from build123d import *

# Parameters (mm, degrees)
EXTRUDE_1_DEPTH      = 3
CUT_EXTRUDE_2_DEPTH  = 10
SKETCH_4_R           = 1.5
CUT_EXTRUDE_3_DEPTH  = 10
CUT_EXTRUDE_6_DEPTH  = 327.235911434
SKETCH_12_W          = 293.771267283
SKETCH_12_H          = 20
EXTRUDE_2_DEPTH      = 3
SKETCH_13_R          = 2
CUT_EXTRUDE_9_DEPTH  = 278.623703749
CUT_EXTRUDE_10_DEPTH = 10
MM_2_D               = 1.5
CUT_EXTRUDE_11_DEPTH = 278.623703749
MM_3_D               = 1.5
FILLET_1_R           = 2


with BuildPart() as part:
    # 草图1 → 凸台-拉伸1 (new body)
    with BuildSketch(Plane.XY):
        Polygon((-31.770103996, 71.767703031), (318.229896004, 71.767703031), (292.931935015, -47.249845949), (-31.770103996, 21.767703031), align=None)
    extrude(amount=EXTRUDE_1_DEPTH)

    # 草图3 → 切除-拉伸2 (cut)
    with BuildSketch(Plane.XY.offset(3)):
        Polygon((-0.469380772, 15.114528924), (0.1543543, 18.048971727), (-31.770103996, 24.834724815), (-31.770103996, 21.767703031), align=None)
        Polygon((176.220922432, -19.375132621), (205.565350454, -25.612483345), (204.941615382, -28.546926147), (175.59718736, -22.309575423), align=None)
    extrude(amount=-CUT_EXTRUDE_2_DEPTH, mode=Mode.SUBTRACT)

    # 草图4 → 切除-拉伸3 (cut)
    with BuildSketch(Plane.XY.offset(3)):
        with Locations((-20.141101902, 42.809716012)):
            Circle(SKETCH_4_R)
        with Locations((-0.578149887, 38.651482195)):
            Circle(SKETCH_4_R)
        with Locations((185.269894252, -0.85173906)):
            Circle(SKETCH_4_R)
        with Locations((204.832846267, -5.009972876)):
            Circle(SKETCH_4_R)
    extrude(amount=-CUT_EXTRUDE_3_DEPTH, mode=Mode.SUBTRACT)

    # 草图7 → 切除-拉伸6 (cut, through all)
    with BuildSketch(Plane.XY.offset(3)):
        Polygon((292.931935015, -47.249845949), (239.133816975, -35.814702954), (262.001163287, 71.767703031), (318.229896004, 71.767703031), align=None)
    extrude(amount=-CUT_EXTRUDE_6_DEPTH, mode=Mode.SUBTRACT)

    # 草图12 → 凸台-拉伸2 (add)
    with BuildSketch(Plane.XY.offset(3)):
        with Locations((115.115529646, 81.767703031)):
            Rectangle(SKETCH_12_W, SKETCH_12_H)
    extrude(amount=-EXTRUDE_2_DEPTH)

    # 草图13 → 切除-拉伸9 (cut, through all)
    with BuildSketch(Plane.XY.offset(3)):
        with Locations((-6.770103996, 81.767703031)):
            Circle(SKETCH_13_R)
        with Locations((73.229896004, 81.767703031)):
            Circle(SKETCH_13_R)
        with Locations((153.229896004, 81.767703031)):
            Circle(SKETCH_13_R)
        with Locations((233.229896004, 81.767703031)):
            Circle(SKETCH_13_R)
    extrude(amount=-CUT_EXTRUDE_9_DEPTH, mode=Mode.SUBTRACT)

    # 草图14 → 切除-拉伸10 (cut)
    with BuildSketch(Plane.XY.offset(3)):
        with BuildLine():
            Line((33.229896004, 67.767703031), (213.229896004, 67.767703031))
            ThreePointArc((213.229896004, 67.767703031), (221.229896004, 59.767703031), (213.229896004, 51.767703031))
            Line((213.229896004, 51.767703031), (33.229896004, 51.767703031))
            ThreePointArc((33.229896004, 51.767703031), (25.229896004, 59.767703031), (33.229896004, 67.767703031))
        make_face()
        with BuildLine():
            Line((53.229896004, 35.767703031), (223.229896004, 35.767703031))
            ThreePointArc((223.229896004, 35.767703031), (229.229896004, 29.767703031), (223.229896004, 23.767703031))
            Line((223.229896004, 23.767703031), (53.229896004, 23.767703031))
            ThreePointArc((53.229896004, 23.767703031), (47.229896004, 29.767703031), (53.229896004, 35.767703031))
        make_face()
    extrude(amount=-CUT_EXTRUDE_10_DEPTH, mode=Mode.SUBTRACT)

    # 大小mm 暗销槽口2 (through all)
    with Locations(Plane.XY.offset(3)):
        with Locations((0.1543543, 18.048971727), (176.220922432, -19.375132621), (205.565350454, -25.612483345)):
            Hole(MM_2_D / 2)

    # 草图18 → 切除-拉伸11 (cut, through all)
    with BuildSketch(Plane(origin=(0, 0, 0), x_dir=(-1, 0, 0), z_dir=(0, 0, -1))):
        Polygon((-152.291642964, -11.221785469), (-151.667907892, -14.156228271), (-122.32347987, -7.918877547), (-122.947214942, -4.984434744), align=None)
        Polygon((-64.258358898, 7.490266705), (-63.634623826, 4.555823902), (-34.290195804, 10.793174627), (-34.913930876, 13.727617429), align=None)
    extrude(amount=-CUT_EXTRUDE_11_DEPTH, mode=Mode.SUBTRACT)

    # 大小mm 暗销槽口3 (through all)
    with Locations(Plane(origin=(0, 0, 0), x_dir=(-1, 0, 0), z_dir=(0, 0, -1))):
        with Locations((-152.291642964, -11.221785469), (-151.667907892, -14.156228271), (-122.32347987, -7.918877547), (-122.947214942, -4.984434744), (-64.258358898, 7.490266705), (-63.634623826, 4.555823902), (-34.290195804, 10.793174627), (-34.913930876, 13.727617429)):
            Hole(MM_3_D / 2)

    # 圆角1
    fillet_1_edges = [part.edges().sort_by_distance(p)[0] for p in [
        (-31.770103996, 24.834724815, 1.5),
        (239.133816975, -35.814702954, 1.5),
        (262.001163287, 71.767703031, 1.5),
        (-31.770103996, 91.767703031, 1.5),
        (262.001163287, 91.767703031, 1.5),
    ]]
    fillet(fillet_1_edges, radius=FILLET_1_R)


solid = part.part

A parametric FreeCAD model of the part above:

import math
import FreeCAD as App
import Part
import Sketcher
Q = App.Units.Quantity


def edges_at(feature, points):
    """Names of the edges that pass closest to the given points."""
    edges = feature.Shape.Edges
    near = lambda p: min(range(len(edges)), key=lambda i: edges[i].distToShape(Part.Vertex(*p))[0])
    return sorted({f"Edge{near(p) + 1}" for p in points})

doc = App.newDocument("Part")
params = doc.addObject("Spreadsheet::Sheet", "Params")
for row, (alias, value) in enumerate([
    ("sketch1_width", "350 mm"),
    ("sketch1_height", "50 mm"),
    ("pad1_length", "3 mm"),
    ("sketch2_length", "3 mm"),
    ("sketch2_length2", "32 mm"),
    ("sketch2_length3", "30 mm"),
    ("pocket1_length", "10 mm"),
    ("sketch3_diameter", "3 mm"),
    ("pocket2_length", "10 mm"),
    ("sketch4_length", "55 mm"),
    ("sketch5_height", "20 mm"),
    ("pad2_length", "3 mm"),
    ("sketch6_diameter", "4 mm"),
    ("sketch7_radius", "8 mm"),
    ("sketch7_radius2", "6 mm"),
    ("sketch7_width", "180 mm"),
    ("sketch7_width2", "170 mm"),
    ("pocket5_length", "10 mm"),
    ("sketch8_diameter", "1.5 mm"),
    ("hole_diameter", "1.5 mm"),
    ("sketch9_length", "3 mm"),
    ("sketch9_length2", "30 mm"),
    ("sketch10_diameter", "1.5 mm"),
    ("hole2_diameter", "1.5 mm"),
    ("fillet_radius", "2 mm"),
], start=1):
    params.set(f"A{row}", alias)
    params.set(f"B{row}", "=" + value)
    params.setAlias(f"B{row}", alias)

body = doc.addObject("PartDesign::Body", "Body")

# Sketch on XY plane
sketch1 = doc.addObject("Sketcher::SketchObject", "Sketch")
body.addObject(sketch1)
sketch1.AttachmentSupport = (doc.XY_Plane, [""])
sketch1.MapMode = "FlatFace"
sketch1.addGeometry([
    Part.LineSegment(App.Vector(318, 72, 0), App.Vector(-32, 72, 0)),
    Part.LineSegment(App.Vector(-32, 72, 0), App.Vector(-32, 22, 0)),
    Part.LineSegment(App.Vector(-32, 22, 0), App.Vector(293, -47, 0)),
    Part.LineSegment(App.Vector(293, -47, 0), App.Vector(318, 72, 0)),
], False)
sketch1.addConstraint([
    Sketcher.Constraint("Coincident", 0, 2, 1, 1),
    Sketcher.Constraint("Coincident", 1, 2, 2, 1),
    Sketcher.Constraint("Coincident", 2, 2, 3, 1),
    Sketcher.Constraint("Coincident", 3, 2, 0, 1),
    Sketcher.Constraint("Horizontal", 0),
    Sketcher.Constraint("Vertical", 1),
    Sketcher.Constraint("Perpendicular", 2, 3),
    Sketcher.Constraint("DistanceX", 0, 2, 0, 1, 350.0),
    Sketcher.Constraint("DistanceY", 1, 2, 1, 1, 50.0),
    Sketcher.Constraint("Angle", 2, Q("-12 deg")),
    Sketcher.Constraint("DistanceX", 0, 2, -1, 1, 31.770104),
    Sketcher.Constraint("DistanceY", -1, 1, 0, 2, 71.767703),
])
sketch1.setExpression("Constraints[7]", "Params.sketch1_width")
sketch1.setExpression("Constraints[8]", "Params.sketch1_height")
pad1 = doc.addObject("PartDesign::Pad", "Pad")
body.addObject(pad1)
pad1.Profile = sketch1
pad1.setExpression("Length", "Params.pad1_length")

# Sketch on XY plane
sketch2 = doc.addObject("Sketcher::SketchObject", "Sketch001")
body.addObject(sketch2)
sketch2.AttachmentSupport = (doc.XY_Plane, [""])
sketch2.MapMode = "FlatFace"
sketch2.AttachmentOffset = App.Placement(App.Vector(0, 0, 3), App.Rotation())
sketch2.addGeometry([
    Part.LineSegment(App.Vector(-0.5, 15.1, 0), App.Vector(0.2, 18, 0)),  # 0
    Part.LineSegment(App.Vector(0.2, 18, 0), App.Vector(-31.8, 24.8, 0)),  # 1
    Part.LineSegment(App.Vector(-31.8, 24.8, 0), App.Vector(-31.8, 21.8, 0)),  # 2
    Part.LineSegment(App.Vector(-31.8, 21.8, 0), App.Vector(-0.5, 15.1, 0)),  # 3
    Part.LineSegment(App.Vector(205.6, -25.6, 0), App.Vector(176.2, -19.4, 0)),  # 4
    Part.LineSegment(App.Vector(176.2, -19.4, 0), App.Vector(175.6, -22.3, 0)),  # 5
    Part.LineSegment(App.Vector(175.6, -22.3, 0), App.Vector(204.9, -28.5, 0)),  # 6
    Part.LineSegment(App.Vector(204.9, -28.5, 0), App.Vector(205.6, -25.6, 0)),  # 7
], False)
sketch2.addConstraint([
    Sketcher.Constraint("Coincident", 0, 2, 1, 1),
    Sketcher.Constraint("Coincident", 1, 2, 2, 1),
    Sketcher.Constraint("Coincident", 2, 2, 3, 1),
    Sketcher.Constraint("Coincident", 3, 2, 0, 1),
    Sketcher.Constraint("Coincident", 4, 2, 5, 1),
    Sketcher.Constraint("Coincident", 5, 2, 6, 1),
    Sketcher.Constraint("Coincident", 6, 2, 7, 1),
    Sketcher.Constraint("Coincident", 7, 2, 4, 1),
    Sketcher.Constraint("Vertical", 2),
    Sketcher.Constraint("Perpendicular", 0, 1),
    Sketcher.Constraint("Parallel", 1, 3),
    Sketcher.Constraint("Parallel", 3, 4),
    Sketcher.Constraint("Perpendicular", 4, 5),
    Sketcher.Constraint("Perpendicular", 5, 6),
    Sketcher.Constraint("Perpendicular", 6, 7),
    Sketcher.Constraint("Equal", 0, 5),
    Sketcher.Constraint("Angle", 0, Q("78 deg")),
    Sketcher.Constraint("Distance", 0, 3.0),
    Sketcher.Constraint("Distance", 3, 32.0),
    Sketcher.Constraint("Distance", 4, 30.0),
    Sketcher.Constraint("DistanceY", 5, 2, 1, 2, 47.1443),
    Sketcher.Constraint("DistanceY", -1, 1, 0, 2, 18.048972),
    Sketcher.Constraint("DistanceX", 3, 2, -1, 1, 0.469381),
    Sketcher.Constraint("DistanceX", -1, 1, 7, 2, 205.56535),
])
sketch2.setExpression("Constraints[17]", "Params.sketch2_length")
sketch2.setExpression("Constraints[18]", "Params.sketch2_length2")
sketch2.setExpression("Constraints[19]", "Params.sketch2_length3")
pocket1 = doc.addObject("PartDesign::Pocket", "Pocket")
body.addObject(pocket1)
pocket1.Profile = sketch2
pocket1.setExpression("Length", "Params.pocket1_length")

# Sketch on XY plane
sketch3 = doc.addObject("Sketcher::SketchObject", "Sketch002")
body.addObject(sketch3)
sketch3.AttachmentSupport = (doc.XY_Plane, [""])
sketch3.MapMode = "FlatFace"
sketch3.AttachmentOffset = App.Placement(App.Vector(0, 0, 3), App.Rotation())
sketch3.addGeometry([
    Part.Circle(App.Vector(-20.1, 42.8, 0), App.Vector(0, 0, 1), 1.5),
    Part.Circle(App.Vector(-0.6, 38.7, 0), App.Vector(0, 0, 1), 1.5),
    Part.Circle(App.Vector(185.3, -0.9, 0), App.Vector(0, 0, 1), 1.5),
    Part.Circle(App.Vector(204.8, -5, 0), App.Vector(0, 0, 1), 1.5),
], False)
sketch3.addConstraint([
    Sketcher.Constraint("Equal", 0, 1),
    Sketcher.Constraint("Equal", 1, 2),
    Sketcher.Constraint("Equal", 2, 3),
    Sketcher.Constraint("Diameter", 0, 3.0),
    Sketcher.Constraint("DistanceX", 0, 3, -1, 1, 20.141102),
    Sketcher.Constraint("DistanceX", 1, 3, -1, 1, 0.57815),
    Sketcher.Constraint("DistanceY", 2, 3, -1, 1, 0.851739),
    Sketcher.Constraint("DistanceY", 2, 3, 1, 3, 39.503221),
    Sketcher.Constraint("DistanceX", 0, 3, 3, 3, 224.973948),
    Sketcher.Constraint("DistanceY", 3, 3, 0, 3, 47.819689),
    Sketcher.Constraint("DistanceY", -1, 1, 0, 3, 42.809716),
    Sketcher.Constraint("DistanceX", -1, 1, 2, 3, 185.269894),
])
sketch3.setExpression("Constraints[3]", "Params.sketch3_diameter")
pocket2 = doc.addObject("PartDesign::Pocket", "Pocket001")
body.addObject(pocket2)
pocket2.Profile = sketch3
pocket2.setExpression("Length", "Params.pocket2_length")

# Sketch on XY plane
sketch4 = doc.addObject("Sketcher::SketchObject", "Sketch003")
body.addObject(sketch4)
sketch4.AttachmentSupport = (doc.XY_Plane, [""])
sketch4.MapMode = "FlatFace"
sketch4.AttachmentOffset = App.Placement(App.Vector(0, 0, 3), App.Rotation())
sketch4.addGeometry([
    Part.LineSegment(App.Vector(239, -36, 0), App.Vector(293, -47, 0)),
    Part.LineSegment(App.Vector(293, -47, 0), App.Vector(318, 72, 0)),
    Part.LineSegment(App.Vector(318, 72, 0), App.Vector(262, 72, 0)),
    Part.LineSegment(App.Vector(262, 72, 0), App.Vector(239, -36, 0)),
], False)
sketch4.addConstraint([
    Sketcher.Constraint("Coincident", 0, 2, 1, 1),
    Sketcher.Constraint("Coincident", 1, 2, 2, 1),
    Sketcher.Constraint("Coincident", 2, 2, 3, 1),
    Sketcher.Constraint("Coincident", 3, 2, 0, 1),
    Sketcher.Constraint("Horizontal", 2),
    Sketcher.Constraint("Perpendicular", 0, 1),
    Sketcher.Constraint("Parallel", 1, 3),
    Sketcher.Constraint("Angle", 0, Q("-12 deg")),
    Sketcher.Constraint("Distance", 0, 55.0),
    Sketcher.Constraint("Distance", 1, 121.676472),
    Sketcher.Constraint("DistanceX", -1, 1, 0, 2, 292.931935),
    Sketcher.Constraint("DistanceY", 0, 2, -1, 1, 47.249846),
])
sketch4.setExpression("Constraints[8]", "Params.sketch4_length")
pocket3 = doc.addObject("PartDesign::Pocket", "Pocket002")
body.addObject(pocket3)
pocket3.Profile = sketch4
pocket3.Type = "ThroughAll"

# Sketch on XY plane
sketch5 = doc.addObject("Sketcher::SketchObject", "Sketch004")
body.addObject(sketch5)
sketch5.AttachmentSupport = (doc.XY_Plane, [""])
sketch5.MapMode = "FlatFace"
sketch5.AttachmentOffset = App.Placement(App.Vector(0, 0, 3), App.Rotation())
sketch5.addGeometry([
    Part.LineSegment(App.Vector(-32, 92, 0), App.Vector(-32, 72, 0)),
    Part.LineSegment(App.Vector(-32, 72, 0), App.Vector(262, 72, 0)),
    Part.LineSegment(App.Vector(262, 72, 0), App.Vector(262, 92, 0)),
    Part.LineSegment(App.Vector(262, 92, 0), App.Vector(-32, 92, 0)),
], False)
sketch5.addConstraint([
    Sketcher.Constraint("Coincident", 0, 2, 1, 1),
    Sketcher.Constraint("Coincident", 1, 2, 2, 1),
    Sketcher.Constraint("Coincident", 2, 2, 3, 1),
    Sketcher.Constraint("Coincident", 3, 2, 0, 1),
    Sketcher.Constraint("Vertical", 0),
    Sketcher.Constraint("Horizontal", 1),
    Sketcher.Constraint("Vertical", 2),
    Sketcher.Constraint("Horizontal", 3),
    Sketcher.Constraint("DistanceY", 0, 2, 0, 1, 20.0),
    Sketcher.Constraint("DistanceX", 1, 1, 1, 2, 293.771267),
    Sketcher.Constraint("DistanceX", 0, 2, -1, 1, 31.770104),
    Sketcher.Constraint("DistanceY", -1, 1, 0, 2, 71.767703),
])
sketch5.setExpression("Constraints[8]", "Params.sketch5_height")
pad2 = doc.addObject("PartDesign::Pad", "Pad001")
body.addObject(pad2)
pad2.Profile = sketch5
pad2.setExpression("Length", "Params.pad2_length")
pad2.Reversed = True

# Sketch on XY plane
sketch6 = doc.addObject("Sketcher::SketchObject", "Sketch005")
body.addObject(sketch6)
sketch6.AttachmentSupport = (doc.XY_Plane, [""])
sketch6.MapMode = "FlatFace"
sketch6.AttachmentOffset = App.Placement(App.Vector(0, 0, 3), App.Rotation())
sketch6.addGeometry([
    Part.Circle(App.Vector(-6.8, 81.8, 0), App.Vector(0, 0, 1), 2),
    Part.Circle(App.Vector(73.2, 81.8, 0), App.Vector(0, 0, 1), 2),
    Part.Circle(App.Vector(153.2, 81.8, 0), App.Vector(0, 0, 1), 2),
    Part.Circle(App.Vector(233.2, 81.8, 0), App.Vector(0, 0, 1), 2),
], False)
sketch6.addConstraint([
    Sketcher.Constraint("Equal", 0, 1),
    Sketcher.Constraint("Equal", 1, 2),
    Sketcher.Constraint("Equal", 2, 3),
    Sketcher.Constraint("Horizontal", 0, 3, 1, 3),
    Sketcher.Constraint("Horizontal", 1, 3, 2, 3),
    Sketcher.Constraint("Horizontal", 2, 3, 3, 3),
    Sketcher.Constraint("Diameter", 0, 4.0),
    Sketcher.Constraint("DistanceX", 0, 3, 1, 3, 80.0),
    Sketcher.Constraint("DistanceX", 1, 3, 2, 3, 80.0),
    Sketcher.Constraint("DistanceX", 2, 3, 3, 3, 80.0),
    Sketcher.Constraint("DistanceX", 0, 3, -1, 1, 6.770104),
    Sketcher.Constraint("DistanceY", -1, 1, 0, 3, 81.767703),
])
sketch6.setExpression("Constraints[6]", "Params.sketch6_diameter")
pocket4 = doc.addObject("PartDesign::Pocket", "Pocket003")
body.addObject(pocket4)
pocket4.Profile = sketch6
pocket4.Type = "ThroughAll"

# Sketch on XY plane
sketch7 = doc.addObject("Sketcher::SketchObject", "Sketch006")
body.addObject(sketch7)
sketch7.AttachmentSupport = (doc.XY_Plane, [""])
sketch7.MapMode = "FlatFace"
sketch7.AttachmentOffset = App.Placement(App.Vector(0, 0, 3), App.Rotation())
sketch7.addGeometry([
    Part.LineSegment(App.Vector(213, 68, 0), App.Vector(33, 68, 0)),  # 0
    Part.ArcOfCircle(Part.Circle(App.Vector(33, 60, 0), App.Vector(0, 0, 1), 8), math.radians(90), math.radians(270)),  # 1
    Part.LineSegment(App.Vector(33, 52, 0), App.Vector(213, 52, 0)),  # 2
    Part.ArcOfCircle(Part.Circle(App.Vector(213, 60, 0), App.Vector(0, 0, 1), 8), math.radians(-90), math.radians(90)),  # 3
    Part.LineSegment(App.Vector(223, 36, 0), App.Vector(53, 36, 0)),  # 4
    Part.ArcOfCircle(Part.Circle(App.Vector(53, 30, 0), App.Vector(0, 0, 1), 6), math.radians(90), math.radians(270)),  # 5
    Part.LineSegment(App.Vector(53, 24, 0), App.Vector(223, 24, 0)),  # 6
    Part.ArcOfCircle(Part.Circle(App.Vector(223, 30, 0), App.Vector(0, 0, 1), 6), math.radians(-90), math.radians(90)),  # 7
], False)
sketch7.addConstraint([
    Sketcher.Constraint("Tangent", 0, 2, 1, 1),
    Sketcher.Constraint("Tangent", 1, 2, 2, 1),
    Sketcher.Constraint("Tangent", 2, 2, 3, 1),
    Sketcher.Constraint("Tangent", 3, 2, 0, 1),
    Sketcher.Constraint("Tangent", 4, 2, 5, 1),
    Sketcher.Constraint("Tangent", 5, 2, 6, 1),
    Sketcher.Constraint("Tangent", 6, 2, 7, 1),
    Sketcher.Constraint("Tangent", 7, 2, 4, 1),
    Sketcher.Constraint("Horizontal", 0),
    Sketcher.Constraint("Horizontal", 2),
    Sketcher.Constraint("Horizontal", 4),
    Sketcher.Constraint("Horizontal", 6),
    Sketcher.Constraint("Radius", 1, 8.0),
    Sketcher.Constraint("Radius", 5, 6.0),
    Sketcher.Constraint("DistanceX", 0, 2, 0, 1, 180.0),
    Sketcher.Constraint("DistanceX", 4, 2, 4, 1, 170.0),
    Sketcher.Constraint("DistanceX", 1, 3, 5, 3, 20.0),
    Sketcher.Constraint("DistanceY", 5, 3, 1, 3, 30.0),
    Sketcher.Constraint("DistanceX", -1, 1, 1, 3, 33.229896),
    Sketcher.Constraint("DistanceY", -1, 1, 1, 3, 59.767703),
])
sketch7.setExpression("Constraints[12]", "Params.sketch7_radius")
sketch7.setExpression("Constraints[13]", "Params.sketch7_radius2")
sketch7.setExpression("Constraints[14]", "Params.sketch7_width")
sketch7.setExpression("Constraints[15]", "Params.sketch7_width2")
pocket5 = doc.addObject("PartDesign::Pocket", "Pocket004")
body.addObject(pocket5)
pocket5.Profile = sketch7
pocket5.setExpression("Length", "Params.pocket5_length")

# Sketch on XY plane
sketch8 = doc.addObject("Sketcher::SketchObject", "Sketch007")
body.addObject(sketch8)
sketch8.AttachmentSupport = (doc.XY_Plane, [""])
sketch8.MapMode = "FlatFace"
sketch8.AttachmentOffset = App.Placement(App.Vector(0, 0, 3), App.Rotation())
sketch8.addGeometry([
    Part.Circle(App.Vector(0.2, 18, 0), App.Vector(0, 0, 1), 0.8),
    Part.Circle(App.Vector(176.2, -19.4, 0), App.Vector(0, 0, 1), 0.8),
    Part.Circle(App.Vector(205.6, -25.6, 0), App.Vector(0, 0, 1), 0.8),
], False)
sketch8.addConstraint([
    Sketcher.Constraint("Equal", 0, 1),
    Sketcher.Constraint("Equal", 1, 2),
    Sketcher.Constraint("Diameter", 0, 1.5),
    Sketcher.Constraint("DistanceY", -1, 1, 0, 3, 18.048972),
    Sketcher.Constraint("DistanceX", -1, 1, 2, 3, 205.56535),
    Sketcher.Constraint("DistanceX", 0, 3, 1, 3, 176.066568),
    Sketcher.Constraint("DistanceX", 1, 3, 2, 3, 29.344428),
    Sketcher.Constraint("DistanceY", 2, 3, 1, 3, 6.237351),
    Sketcher.Constraint("DistanceY", 1, 3, -1, 1, 19.375133),
])
sketch8.setExpression("Constraints[2]", "Params.sketch8_diameter")
doc.recompute()
hole = doc.addObject("PartDesign::Hole", "Hole")
body.addObject(hole)
hole.Profile = sketch8
hole.ThreadType = "None"
hole.setExpression("Diameter", "Params.hole_diameter")
hole.DepthType = "ThroughAll"

# Sketch on XY plane
sketch9 = doc.addObject("Sketcher::SketchObject", "Sketch008")
body.addObject(sketch9)
sketch9.AttachmentSupport = (doc.XY_Plane, [""])
sketch9.MapMode = "FlatFace"
sketch9.addGeometry([
    Part.LineSegment(App.Vector(152.3, -11.2, 0), App.Vector(151.7, -14.2, 0)),  # 0
    Part.LineSegment(App.Vector(151.7, -14.2, 0), App.Vector(122.3, -7.9, 0)),  # 1
    Part.LineSegment(App.Vector(122.3, -7.9, 0), App.Vector(122.9, -5, 0)),  # 2
    Part.LineSegment(App.Vector(122.9, -5, 0), App.Vector(152.3, -11.2, 0)),  # 3
    Part.LineSegment(App.Vector(64.3, 7.5, 0), App.Vector(63.6, 4.6, 0)),  # 4
    Part.LineSegment(App.Vector(63.6, 4.6, 0), App.Vector(34.3, 10.8, 0)),  # 5
    Part.LineSegment(App.Vector(34.3, 10.8, 0), App.Vector(34.9, 13.7, 0)),  # 6
    Part.LineSegment(App.Vector(34.9, 13.7, 0), App.Vector(64.3, 7.5, 0)),  # 7
], False)
sketch9.addConstraint([
    Sketcher.Constraint("Coincident", 0, 2, 1, 1),
    Sketcher.Constraint("Coincident", 1, 2, 2, 1),
    Sketcher.Constraint("Coincident", 2, 2, 3, 1),
    Sketcher.Constraint("Coincident", 3, 2, 0, 1),
    Sketcher.Constraint("Coincident", 4, 2, 5, 1),
    Sketcher.Constraint("Coincident", 5, 2, 6, 1),
    Sketcher.Constraint("Coincident", 6, 2, 7, 1),
    Sketcher.Constraint("Coincident", 7, 2, 4, 1),
    Sketcher.Constraint("Perpendicular", 0, 1),
    Sketcher.Constraint("Perpendicular", 1, 2),
    Sketcher.Constraint("Perpendicular", 2, 3),
    Sketcher.Constraint("Perpendicular", 3, 4),
    Sketcher.Constraint("Perpendicular", 4, 5),
    Sketcher.Constraint("Perpendicular", 5, 6),
    Sketcher.Constraint("Perpendicular", 6, 7),
    Sketcher.Constraint("Equal", 2, 4),
    Sketcher.Constraint("Equal", 3, 5),
    Sketcher.Constraint("Angle", 0, Q("-102 deg")),
    Sketcher.Constraint("Distance", 0, 3.0),
    Sketcher.Constraint("Distance", 1, 30.0),
    Sketcher.Constraint("DistanceY", 1, 2, 4, 2, 12.474701),
    Sketcher.Constraint("DistanceY", 0, 2, -1, 1, 14.156228),
    Sketcher.Constraint("DistanceX", -1, 1, 1, 2, 122.32348),
    Sketcher.Constraint("DistanceX", -1, 1, 6, 2, 34.913931),
])
sketch9.setExpression("Constraints[18]", "Params.sketch9_length")
sketch9.setExpression("Constraints[19]", "Params.sketch9_length2")
pocket6 = doc.addObject("PartDesign::Pocket", "Pocket005")
body.addObject(pocket6)
pocket6.Profile = sketch9
pocket6.Type = "ThroughAll"
pocket6.Reversed = True

# Sketch on XY plane
sketch10 = doc.addObject("Sketcher::SketchObject", "Sketch009")
body.addObject(sketch10)
sketch10.AttachmentSupport = (doc.XY_Plane, [""])
sketch10.MapMode = "FlatFace"
sketch10.addGeometry([
    Part.Circle(App.Vector(152.3, -11.2, 0), App.Vector(0, 0, 1), 0.8),  # 0
    Part.Circle(App.Vector(151.7, -14.2, 0), App.Vector(0, 0, 1), 0.8),  # 1
    Part.Circle(App.Vector(122.3, -7.9, 0), App.Vector(0, 0, 1), 0.8),  # 2
    Part.Circle(App.Vector(122.9, -5, 0), App.Vector(0, 0, 1), 0.8),  # 3
    Part.Circle(App.Vector(64.3, 7.5, 0), App.Vector(0, 0, 1), 0.8),  # 4
    Part.Circle(App.Vector(63.6, 4.6, 0), App.Vector(0, 0, 1), 0.8),  # 5
    Part.Circle(App.Vector(34.3, 10.8, 0), App.Vector(0, 0, 1), 0.8),  # 6
    Part.Circle(App.Vector(34.9, 13.7, 0), App.Vector(0, 0, 1), 0.8),  # 7
], False)
sketch10.addConstraint([
    Sketcher.Constraint("Equal", 0, 1),
    Sketcher.Constraint("Equal", 1, 2),
    Sketcher.Constraint("Equal", 2, 3),
    Sketcher.Constraint("Equal", 3, 4),
    Sketcher.Constraint("Equal", 4, 5),
    Sketcher.Constraint("Equal", 5, 6),
    Sketcher.Constraint("Equal", 6, 7),
    Sketcher.Constraint("Diameter", 0, 1.5),
    Sketcher.Constraint("DistanceY", 3, 3, 4, 3, 12.474701),
    Sketcher.Constraint("DistanceY", 2, 3, 5, 3, 12.474701),
    Sketcher.Constraint("DistanceY", 1, 3, -1, 1, 14.156228),
    Sketcher.Constraint("DistanceX", -1, 1, 2, 3, 122.32348),
    Sketcher.Constraint("DistanceX", -1, 1, 4, 3, 64.258359),
    Sketcher.Constraint("DistanceX", -1, 1, 7, 3, 34.913931),
    Sketcher.Constraint("DistanceX", 2, 3, 1, 3, 29.344428),
    Sketcher.Constraint("DistanceY", 1, 3, 2, 3, 6.237351),
    Sketcher.Constraint("DistanceX", 3, 3, 0, 3, 29.344428),
    Sketcher.Constraint("DistanceY", 0, 3, 3, 3, 6.237351),
    Sketcher.Constraint("DistanceX", 5, 3, 3, 3, 59.312591),
    Sketcher.Constraint("DistanceY", 3, 3, 5, 3, 9.540259),
    Sketcher.Constraint("DistanceX", 6, 3, 5, 3, 29.344428),
    Sketcher.Constraint("DistanceY", 5, 3, 6, 3, 6.237351),
    Sketcher.Constraint("DistanceY", 4, 3, 7, 3, 6.237351),
    Sketcher.Constraint("DistanceX", -1, 1, 0, 3, 152.291643),
])
sketch10.setExpression("Constraints[7]", "Params.sketch10_diameter")
doc.recompute()
hole2 = doc.addObject("PartDesign::Hole", "Hole001")
body.addObject(hole2)
hole2.Profile = sketch10
hole2.ThreadType = "None"
hole2.setExpression("Diameter", "Params.hole2_diameter")
hole2.DepthType = "ThroughAll"
hole2.Reversed = True
doc.recompute()

fillet = doc.addObject("PartDesign::Fillet", "Fillet")
body.addObject(fillet)
fillet.Base = (hole2, edges_at(hole2, [
    (-31.77, 24.835, 1.5),
    (239.134, -35.815, 1.5),
    (262.001, 71.768, 1.5),
    (-31.77, 91.768, 1.5),
    (262.001, 91.768, 1.5),
]))
fillet.setExpression("Radius", "Params.fillet_radius")

doc.recompute()
